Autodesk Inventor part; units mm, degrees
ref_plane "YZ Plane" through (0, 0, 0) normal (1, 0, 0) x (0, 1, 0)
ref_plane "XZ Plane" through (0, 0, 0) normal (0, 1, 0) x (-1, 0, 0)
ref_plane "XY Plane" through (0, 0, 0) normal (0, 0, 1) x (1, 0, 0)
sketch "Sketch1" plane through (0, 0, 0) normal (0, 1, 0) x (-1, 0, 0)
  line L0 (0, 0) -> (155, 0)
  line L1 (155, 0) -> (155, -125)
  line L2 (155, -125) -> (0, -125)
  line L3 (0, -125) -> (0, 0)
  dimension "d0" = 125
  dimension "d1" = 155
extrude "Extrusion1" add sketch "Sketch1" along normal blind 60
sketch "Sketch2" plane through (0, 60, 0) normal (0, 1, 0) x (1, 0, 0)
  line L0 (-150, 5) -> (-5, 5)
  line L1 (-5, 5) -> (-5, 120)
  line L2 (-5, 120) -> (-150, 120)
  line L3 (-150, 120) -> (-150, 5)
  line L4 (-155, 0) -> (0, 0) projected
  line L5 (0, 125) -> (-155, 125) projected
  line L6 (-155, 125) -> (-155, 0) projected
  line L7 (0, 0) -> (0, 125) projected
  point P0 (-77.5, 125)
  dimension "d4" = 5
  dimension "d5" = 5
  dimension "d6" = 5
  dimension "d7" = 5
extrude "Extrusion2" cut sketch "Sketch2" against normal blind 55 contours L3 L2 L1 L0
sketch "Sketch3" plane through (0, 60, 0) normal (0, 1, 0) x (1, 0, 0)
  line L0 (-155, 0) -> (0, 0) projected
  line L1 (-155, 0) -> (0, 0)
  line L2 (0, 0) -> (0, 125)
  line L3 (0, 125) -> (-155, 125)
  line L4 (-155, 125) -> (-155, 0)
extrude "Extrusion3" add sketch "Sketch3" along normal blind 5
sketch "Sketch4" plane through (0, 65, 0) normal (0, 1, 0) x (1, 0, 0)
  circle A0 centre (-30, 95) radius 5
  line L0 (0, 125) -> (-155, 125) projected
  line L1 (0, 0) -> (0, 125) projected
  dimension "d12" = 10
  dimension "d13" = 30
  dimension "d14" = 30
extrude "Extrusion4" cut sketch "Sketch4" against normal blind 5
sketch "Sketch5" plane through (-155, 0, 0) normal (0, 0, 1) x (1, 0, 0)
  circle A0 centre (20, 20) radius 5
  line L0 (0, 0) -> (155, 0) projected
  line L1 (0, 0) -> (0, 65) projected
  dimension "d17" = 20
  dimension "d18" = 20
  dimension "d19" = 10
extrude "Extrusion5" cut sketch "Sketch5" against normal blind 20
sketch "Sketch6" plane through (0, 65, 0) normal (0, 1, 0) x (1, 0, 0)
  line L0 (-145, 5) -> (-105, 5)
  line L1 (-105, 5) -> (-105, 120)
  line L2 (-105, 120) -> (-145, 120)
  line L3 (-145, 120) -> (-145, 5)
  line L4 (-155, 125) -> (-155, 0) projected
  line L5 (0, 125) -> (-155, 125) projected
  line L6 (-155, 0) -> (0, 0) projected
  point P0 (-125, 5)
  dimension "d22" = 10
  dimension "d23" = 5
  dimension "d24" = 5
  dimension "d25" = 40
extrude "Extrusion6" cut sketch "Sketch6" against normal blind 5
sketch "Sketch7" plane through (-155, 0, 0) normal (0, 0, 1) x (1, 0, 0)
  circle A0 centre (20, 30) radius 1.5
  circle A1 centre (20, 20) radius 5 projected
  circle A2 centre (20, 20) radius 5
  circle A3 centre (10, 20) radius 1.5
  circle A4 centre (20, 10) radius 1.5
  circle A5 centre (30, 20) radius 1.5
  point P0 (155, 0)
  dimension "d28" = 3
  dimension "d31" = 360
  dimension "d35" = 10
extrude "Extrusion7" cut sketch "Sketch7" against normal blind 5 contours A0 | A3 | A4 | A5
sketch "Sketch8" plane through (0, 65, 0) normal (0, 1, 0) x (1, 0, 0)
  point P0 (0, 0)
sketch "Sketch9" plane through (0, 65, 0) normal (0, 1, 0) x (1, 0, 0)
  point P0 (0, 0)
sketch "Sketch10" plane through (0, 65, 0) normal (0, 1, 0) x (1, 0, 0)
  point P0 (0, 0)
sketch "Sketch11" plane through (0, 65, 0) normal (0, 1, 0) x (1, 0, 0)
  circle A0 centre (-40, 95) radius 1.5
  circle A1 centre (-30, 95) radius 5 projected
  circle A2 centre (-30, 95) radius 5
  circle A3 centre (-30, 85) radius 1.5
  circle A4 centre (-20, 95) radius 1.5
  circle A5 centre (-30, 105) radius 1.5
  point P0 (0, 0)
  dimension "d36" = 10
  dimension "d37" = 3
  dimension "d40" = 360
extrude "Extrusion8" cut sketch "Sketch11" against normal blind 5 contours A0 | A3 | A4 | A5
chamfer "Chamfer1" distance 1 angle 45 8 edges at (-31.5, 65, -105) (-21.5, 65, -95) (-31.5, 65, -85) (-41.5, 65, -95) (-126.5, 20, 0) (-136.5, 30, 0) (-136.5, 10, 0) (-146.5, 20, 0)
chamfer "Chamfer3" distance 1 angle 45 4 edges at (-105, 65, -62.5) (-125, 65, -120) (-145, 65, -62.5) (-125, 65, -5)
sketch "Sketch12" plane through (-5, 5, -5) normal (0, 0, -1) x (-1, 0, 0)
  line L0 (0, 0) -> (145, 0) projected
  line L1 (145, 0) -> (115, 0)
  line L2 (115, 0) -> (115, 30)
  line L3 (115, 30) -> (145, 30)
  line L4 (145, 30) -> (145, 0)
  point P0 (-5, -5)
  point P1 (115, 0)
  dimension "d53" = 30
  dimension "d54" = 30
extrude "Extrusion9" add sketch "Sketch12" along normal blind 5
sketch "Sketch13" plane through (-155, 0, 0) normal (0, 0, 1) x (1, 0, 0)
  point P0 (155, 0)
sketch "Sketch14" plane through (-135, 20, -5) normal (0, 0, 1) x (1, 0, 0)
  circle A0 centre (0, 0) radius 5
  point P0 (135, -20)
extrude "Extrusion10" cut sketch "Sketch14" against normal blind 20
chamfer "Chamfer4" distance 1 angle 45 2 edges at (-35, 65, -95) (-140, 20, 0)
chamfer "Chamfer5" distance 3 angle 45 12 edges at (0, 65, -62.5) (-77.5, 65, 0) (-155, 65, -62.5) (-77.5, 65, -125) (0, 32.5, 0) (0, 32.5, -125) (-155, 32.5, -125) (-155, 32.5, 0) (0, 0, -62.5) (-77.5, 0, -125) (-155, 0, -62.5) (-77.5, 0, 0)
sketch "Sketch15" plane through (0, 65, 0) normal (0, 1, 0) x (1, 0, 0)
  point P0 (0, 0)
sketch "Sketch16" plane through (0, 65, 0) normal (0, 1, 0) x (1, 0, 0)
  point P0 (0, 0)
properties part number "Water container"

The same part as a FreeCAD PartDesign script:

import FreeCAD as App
import Part
import Sketcher
from FreeCAD import Vector


def edges_at(feature, points):
    """Names of the edges that pass closest to the given points."""
    edges = feature.Shape.Edges
    near = lambda p: min(range(len(edges)), key=lambda i: edges[i].distToShape(Part.Vertex(*p))[0])
    return sorted({f"Edge{near(p) + 1}" for p in points})


def add_polygon(sketch, points):
    """Adds a closed chain of lines whose ends are joined by coincident constraints."""
    first, n = sketch.GeometryCount, len(points)
    for a, b in zip(points, points[1:] + points[:1]):
        sketch.addGeometry(Part.LineSegment(App.Vector(*a, 0), App.Vector(*b, 0)), False)
    for i in range(n):
        sketch.addConstraint(Sketcher.Constraint("Coincident", first + i, 2, first + (i + 1) % n, 1))

doc = App.newDocument("Part")
body = doc.addObject("PartDesign::Body", "Body")

sketch1 = body.newObject("Sketcher::SketchObject", "Sketch")
sketch1.AttachmentSupport = (doc.getObject("XZ_Plane"), [""])
sketch1.MapMode = "FlatFace"
add_polygon(sketch1, [(-155, 0), (0, 0), (0, -125), (-155, -125)])
sketch1.addConstraint([
    Sketcher.Constraint("Horizontal", 0),
    Sketcher.Constraint("Vertical", 1),
    Sketcher.Constraint("Horizontal", 2),
    Sketcher.Constraint("Vertical", 3),
    Sketcher.Constraint("Coincident", 0, 2, -1, 1),
    Sketcher.Constraint("DistanceX", 0, 1, 0, 2, 155.0),
    Sketcher.Constraint("DistanceY", 1, 2, 1, 1, 125.0),
])
pad1 = body.newObject("PartDesign::Pad", "Pad")
pad1.Profile = sketch1
pad1.Length = 60
pad1.Reversed = True

sketch2 = body.newObject("Sketcher::SketchObject", "Sketch001")
sketch2.AttachmentSupport = (doc.getObject("XZ_Plane"), [""])
sketch2.MapMode = "FlatFace"
sketch2.AttachmentOffset = App.Placement(Vector(0, 0, -60), App.Rotation())
add_polygon(sketch2, [(-150, -120), (-150, -5), (-5, -5), (-5, -120)])
sketch2.addConstraint([
    Sketcher.Constraint("Vertical", 0),
    Sketcher.Constraint("Horizontal", 1),
    Sketcher.Constraint("Vertical", 2),
    Sketcher.Constraint("Horizontal", 3),
    Sketcher.Constraint("DistanceY", 0, 2, -1, 1, 5.0),
    Sketcher.Constraint("DistanceX", 1, 2, -1, 1, 5.0),
    Sketcher.Constraint("DistanceX", 1, 1, 1, 2, 145.0),
    Sketcher.Constraint("DistanceY", 0, 1, 0, 2, 115.0),
])
pocket1 = body.newObject("PartDesign::Pocket", "Pocket")
pocket1.Profile = sketch2
pocket1.Length = 55
pocket1.Reversed = True

sketch3 = body.newObject("Sketcher::SketchObject", "Sketch002")
sketch3.AttachmentSupport = (doc.getObject("XZ_Plane"), [""])
sketch3.MapMode = "FlatFace"
sketch3.AttachmentOffset = App.Placement(Vector(0, 0, -60), App.Rotation())
add_polygon(sketch3, [(-155, -125), (-155, 0), (0, 0), (0, -125)])
sketch3.addConstraint([
    Sketcher.Constraint("Vertical", 0),
    Sketcher.Constraint("Horizontal", 1),
    Sketcher.Constraint("Vertical", 2),
    Sketcher.Constraint("Horizontal", 3),
    Sketcher.Constraint("Coincident", 1, 2, -1, 1),
    Sketcher.Constraint("DistanceX", 1, 1, 1, 2, 155.0),
    Sketcher.Constraint("DistanceY", 0, 1, 0, 2, 125.0),
])
pad2 = body.newObject("PartDesign::Pad", "Pad001")
pad2.Profile = sketch3
pad2.Length = 5
pad2.Reversed = True

sketch4 = body.newObject("Sketcher::SketchObject", "Sketch003")
sketch4.AttachmentSupport = (doc.getObject("XZ_Plane"), [""])
sketch4.MapMode = "FlatFace"
sketch4.AttachmentOffset = App.Placement(Vector(0, 0, -65), App.Rotation())
sketch4.addGeometry(Part.Circle(Vector(-30, -95, 0), Vector(0, 0, 1), 5), False)
sketch4.addConstraint([
    Sketcher.Constraint("Diameter", 0, 10.0),
    Sketcher.Constraint("DistanceX", 0, 3, -1, 1, 30.0),
    Sketcher.Constraint("DistanceY", 0, 3, -1, 1, 95.0),
])
pocket2 = body.newObject("PartDesign::Pocket", "Pocket001")
pocket2.Profile = sketch4
pocket2.Length = 5
pocket2.Reversed = True

sketch5 = body.newObject("Sketcher::SketchObject", "Sketch004")
sketch5.AttachmentSupport = (doc.getObject("XY_Plane"), [""])
sketch5.MapMode = "FlatFace"
sketch5.addGeometry(Part.Circle(Vector(-135, 20, 0), Vector(0, 0, 1), 5), False)
sketch5.addConstraint([
    Sketcher.Constraint("Diameter", 0, 10.0),
    Sketcher.Constraint("DistanceY", -1, 1, 0, 3, 20.0),
    Sketcher.Constraint("DistanceX", 0, 3, -1, 1, 135.0),
])
pocket3 = body.newObject("PartDesign::Pocket", "Pocket002")
pocket3.Profile = sketch5
pocket3.Length = 20

sketch6 = body.newObject("Sketcher::SketchObject", "Sketch005")
sketch6.AttachmentSupport = (doc.getObject("XZ_Plane"), [""])
sketch6.MapMode = "FlatFace"
sketch6.AttachmentOffset = App.Placement(Vector(0, 0, -65), App.Rotation())
add_polygon(sketch6, [(-145, -120), (-145, -5), (-105, -5), (-105, -120)])
sketch6.addConstraint([
    Sketcher.Constraint("Vertical", 0),
    Sketcher.Constraint("Horizontal", 1),
    Sketcher.Constraint("Vertical", 2),
    Sketcher.Constraint("Horizontal", 3),
    Sketcher.Constraint("DistanceX", 1, 1, 1, 2, 40.0),
    Sketcher.Constraint("DistanceY", 0, 2, -1, 1, 5.0),
    Sketcher.Constraint("DistanceY", 0, 1, 0, 2, 115.0),
    Sketcher.Constraint("DistanceX", 0, 2, -1, 1, 145.0),
])
pocket4 = body.newObject("PartDesign::Pocket", "Pocket003")
pocket4.Profile = sketch6
pocket4.Length = 5
pocket4.Reversed = True

sketch7 = body.newObject("Sketcher::SketchObject", "Sketch006")
sketch7.AttachmentSupport = (doc.getObject("XY_Plane"), [""])
sketch7.MapMode = "FlatFace"
sketch7.addGeometry([
    Part.Circle(Vector(-135, 30, 0), Vector(0, 0, 1), 1.5),
    Part.Circle(Vector(-145, 20, 0), Vector(0, 0, 1), 1.5),
    Part.Circle(Vector(-135, 10, 0), Vector(0, 0, 1), 1.5),
    Part.Circle(Vector(-125, 20, 0), Vector(0, 0, 1), 1.5),
], False)
sketch7.addConstraint([
    Sketcher.Constraint("Equal", 0, 1),
    Sketcher.Constraint("Equal", 1, 2),
    Sketcher.Constraint("Equal", 2, 3),
    Sketcher.Constraint("Horizontal", 1, 3, 3, 3),
    Sketcher.Constraint("Vertical", 0, 3, 2, 3),
    Sketcher.Constraint("Diameter", 0, 3.0),
    Sketcher.Constraint("DistanceY", -1, 1, 2, 3, 10.0),
    Sketcher.Constraint("DistanceX", 1, 3, 0, 3, 10.0),
    Sketcher.Constraint("DistanceY", 1, 3, 0, 3, 10.0),
    Sketcher.Constraint("DistanceY", 2, 3, 1, 3, 10.0),
    Sketcher.Constraint("DistanceX", 0, 3, 3, 3, 10.0),
    Sketcher.Constraint("DistanceX", 0, 3, -1, 1, 135.0),
])
pocket5 = body.newObject("PartDesign::Pocket", "Pocket004")
pocket5.Profile = sketch7
pocket5.Length = 5

sketch8 = body.newObject("Sketcher::SketchObject", "Sketch007")
sketch8.AttachmentSupport = (doc.getObject("XZ_Plane"), [""])
sketch8.MapMode = "FlatFace"
sketch8.AttachmentOffset = App.Placement(Vector(0, 0, -65), App.Rotation())
sketch8.addGeometry([
    Part.Circle(Vector(-40, -95, 0), Vector(0, 0, 1), 1.5),
    Part.Circle(Vector(-30, -85, 0), Vector(0, 0, 1), 1.5),
    Part.Circle(Vector(-20, -95, 0), Vector(0, 0, 1), 1.5),
    Part.Circle(Vector(-30, -105, 0), Vector(0, 0, 1), 1.5),
], False)
sketch8.addConstraint([
    Sketcher.Constraint("Equal", 0, 1),
    Sketcher.Constraint("Equal", 1, 2),
    Sketcher.Constraint("Equal", 2, 3),
    Sketcher.Constraint("Horizontal", 0, 3, 2, 3),
    Sketcher.Constraint("Vertical", 1, 3, 3, 3),
    Sketcher.Constraint("Diameter", 0, 3.0),
    Sketcher.Constraint("DistanceX", 0, 3, 1, 3, 10.0),
    Sketcher.Constraint("DistanceY", 0, 3, 1, 3, 10.0),
    Sketcher.Constraint("DistanceX", 1, 3, 2, 3, 10.0),
    Sketcher.Constraint("DistanceY", 3, 3, 0, 3, 10.0),
    Sketcher.Constraint("DistanceX", 0, 3, -1, 1, 40.0),
    Sketcher.Constraint("DistanceY", 0, 3, -1, 1, 95.0),
])
pocket6 = body.newObject("PartDesign::Pocket", "Pocket005")
pocket6.Profile = sketch8
pocket6.Length = 5
pocket6.Reversed = True
doc.recompute()

chamfer = body.newObject("PartDesign::Chamfer", "Chamfer")
chamfer.Base = (pocket6, edges_at(pocket6, [
    (-31.5, 65, -105),
    (-21.5, 65, -95),
    (-31.5, 65, -85),
    (-41.5, 65, -95),
    (-126.5, 20, 0),
    (-136.5, 30, 0),
    (-136.5, 10, 0),
    (-146.5, 20, 0),
]))
chamfer.Size = 1
doc.recompute()

chamfer2 = body.newObject("PartDesign::Chamfer", "Chamfer001")
chamfer2.Base = (chamfer, edges_at(chamfer, [
    (-105, 65, -62.5),
    (-125, 65, -120),
    (-145, 65, -62.5),
    (-125, 65, -5),
]))
chamfer2.Size = 1

sketch9 = body.newObject("Sketcher::SketchObject", "Sketch008")
sketch9.AttachmentSupport = (doc.getObject("XY_Plane"), [""])
sketch9.MapMode = "FlatFace"
sketch9.AttachmentOffset = App.Placement(Vector(0, 0, -5), App.Rotation())
add_polygon(sketch9, [(-120, 35), (-120, 5), (-150, 5), (-150, 35)])
sketch9.addConstraint([
    Sketcher.Constraint("Vertical", 0),
    Sketcher.Constraint("Horizontal", 1),
    Sketcher.Constraint("Vertical", 2),
    Sketcher.Constraint("Horizontal", 3),
    Sketcher.Constraint("Equal", 3, 0),
    Sketcher.Constraint("DistanceX", 1, 2, 1, 1, 30.0),
    Sketcher.Constraint("DistanceX", 0, 2, -1, 1, 120.0),
    Sketcher.Constraint("DistanceY", -1, 1, 0, 2, 5.0),
])
pad3 = body.newObject("PartDesign::Pad", "Pad002")
pad3.Profile = sketch9
pad3.Length = 5
pad3.Reversed = True

sketch10 = body.newObject("Sketcher::SketchObject", "Sketch009")
sketch10.AttachmentSupport = (doc.getObject("XY_Plane"), [""])
sketch10.MapMode = "FlatFace"
sketch10.AttachmentOffset = App.Placement(Vector(0, 0, -5), App.Rotation())
sketch10.addGeometry(Part.Circle(Vector(-135, 20, 0), Vector(0, 0, 1), 5), False)
sketch10.addConstraint([
    Sketcher.Constraint("Diameter", 0, 10.0),
    Sketcher.Constraint("DistanceX", 0, 3, -1, 1, 135.0),
    Sketcher.Constraint("DistanceY", -1, 1, 0, 3, 20.0),
])
pocket7 = body.newObject("PartDesign::Pocket", "Pocket006")
pocket7.Profile = sketch10
pocket7.Length = 20
doc.recompute()

chamfer3 = body.newObject("PartDesign::Chamfer", "Chamfer002")
chamfer3.Base = (pocket7, edges_at(pocket7, [(-35, 65, -95), (-140, 20, 0)]))
chamfer3.Size = 1
doc.recompute()

chamfer4 = body.newObject("PartDesign::Chamfer", "Chamfer003")
chamfer4.Base = (chamfer3, edges_at(chamfer3, [
    (0, 65, -62.5),
    (-77.5, 65, 0),
    (-155, 65, -62.5),
    (-77.5, 65, -125),
    (0, 32.5, 0),
    (0, 32.5, -125),
    (-155, 32.5, -125),
    (-155, 32.5, 0),
    (0, 0, -62.5),
    (-77.5, 0, -125),
    (-155, 0, -62.5),
    (-77.5, 0, 0),
]))
chamfer4.Size = 3

doc.recompute()
